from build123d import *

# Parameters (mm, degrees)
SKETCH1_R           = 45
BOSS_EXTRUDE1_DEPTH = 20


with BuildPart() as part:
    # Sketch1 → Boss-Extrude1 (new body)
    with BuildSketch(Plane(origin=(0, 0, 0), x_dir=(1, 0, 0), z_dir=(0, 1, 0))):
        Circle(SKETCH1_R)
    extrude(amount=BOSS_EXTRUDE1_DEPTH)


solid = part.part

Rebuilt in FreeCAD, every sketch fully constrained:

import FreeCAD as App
import Part
import Sketcher

V = App.Vector
Q = App.Units.Quantity

doc = App.newDocument("Part")
body = doc.addObject("PartDesign::Body", "Body")

sketch1 = doc.addObject("Sketcher::SketchObject", "Sketch")
body.addObject(sketch1)
sketch1.AttachmentSupport = (doc.XZ_Plane, [""])
sketch1.MapMode = "FlatFace"
sketch1.addGeometry(Part.Circle(V(0, 0, 0), V(0, 0, 1), 45), False)
sketch1.addConstraint(Sketcher.Constraint("Coincident", 0, 3, -1, 1))
sketch1.addConstraint(Sketcher.Constraint("Diameter", 0, Q("90 mm")))
pad1 = doc.addObject("PartDesign::Pad", "Pad")
body.addObject(pad1)
pad1.Profile = sketch1
pad1.Length = 20
pad1.Reversed = True

doc.recompute()
